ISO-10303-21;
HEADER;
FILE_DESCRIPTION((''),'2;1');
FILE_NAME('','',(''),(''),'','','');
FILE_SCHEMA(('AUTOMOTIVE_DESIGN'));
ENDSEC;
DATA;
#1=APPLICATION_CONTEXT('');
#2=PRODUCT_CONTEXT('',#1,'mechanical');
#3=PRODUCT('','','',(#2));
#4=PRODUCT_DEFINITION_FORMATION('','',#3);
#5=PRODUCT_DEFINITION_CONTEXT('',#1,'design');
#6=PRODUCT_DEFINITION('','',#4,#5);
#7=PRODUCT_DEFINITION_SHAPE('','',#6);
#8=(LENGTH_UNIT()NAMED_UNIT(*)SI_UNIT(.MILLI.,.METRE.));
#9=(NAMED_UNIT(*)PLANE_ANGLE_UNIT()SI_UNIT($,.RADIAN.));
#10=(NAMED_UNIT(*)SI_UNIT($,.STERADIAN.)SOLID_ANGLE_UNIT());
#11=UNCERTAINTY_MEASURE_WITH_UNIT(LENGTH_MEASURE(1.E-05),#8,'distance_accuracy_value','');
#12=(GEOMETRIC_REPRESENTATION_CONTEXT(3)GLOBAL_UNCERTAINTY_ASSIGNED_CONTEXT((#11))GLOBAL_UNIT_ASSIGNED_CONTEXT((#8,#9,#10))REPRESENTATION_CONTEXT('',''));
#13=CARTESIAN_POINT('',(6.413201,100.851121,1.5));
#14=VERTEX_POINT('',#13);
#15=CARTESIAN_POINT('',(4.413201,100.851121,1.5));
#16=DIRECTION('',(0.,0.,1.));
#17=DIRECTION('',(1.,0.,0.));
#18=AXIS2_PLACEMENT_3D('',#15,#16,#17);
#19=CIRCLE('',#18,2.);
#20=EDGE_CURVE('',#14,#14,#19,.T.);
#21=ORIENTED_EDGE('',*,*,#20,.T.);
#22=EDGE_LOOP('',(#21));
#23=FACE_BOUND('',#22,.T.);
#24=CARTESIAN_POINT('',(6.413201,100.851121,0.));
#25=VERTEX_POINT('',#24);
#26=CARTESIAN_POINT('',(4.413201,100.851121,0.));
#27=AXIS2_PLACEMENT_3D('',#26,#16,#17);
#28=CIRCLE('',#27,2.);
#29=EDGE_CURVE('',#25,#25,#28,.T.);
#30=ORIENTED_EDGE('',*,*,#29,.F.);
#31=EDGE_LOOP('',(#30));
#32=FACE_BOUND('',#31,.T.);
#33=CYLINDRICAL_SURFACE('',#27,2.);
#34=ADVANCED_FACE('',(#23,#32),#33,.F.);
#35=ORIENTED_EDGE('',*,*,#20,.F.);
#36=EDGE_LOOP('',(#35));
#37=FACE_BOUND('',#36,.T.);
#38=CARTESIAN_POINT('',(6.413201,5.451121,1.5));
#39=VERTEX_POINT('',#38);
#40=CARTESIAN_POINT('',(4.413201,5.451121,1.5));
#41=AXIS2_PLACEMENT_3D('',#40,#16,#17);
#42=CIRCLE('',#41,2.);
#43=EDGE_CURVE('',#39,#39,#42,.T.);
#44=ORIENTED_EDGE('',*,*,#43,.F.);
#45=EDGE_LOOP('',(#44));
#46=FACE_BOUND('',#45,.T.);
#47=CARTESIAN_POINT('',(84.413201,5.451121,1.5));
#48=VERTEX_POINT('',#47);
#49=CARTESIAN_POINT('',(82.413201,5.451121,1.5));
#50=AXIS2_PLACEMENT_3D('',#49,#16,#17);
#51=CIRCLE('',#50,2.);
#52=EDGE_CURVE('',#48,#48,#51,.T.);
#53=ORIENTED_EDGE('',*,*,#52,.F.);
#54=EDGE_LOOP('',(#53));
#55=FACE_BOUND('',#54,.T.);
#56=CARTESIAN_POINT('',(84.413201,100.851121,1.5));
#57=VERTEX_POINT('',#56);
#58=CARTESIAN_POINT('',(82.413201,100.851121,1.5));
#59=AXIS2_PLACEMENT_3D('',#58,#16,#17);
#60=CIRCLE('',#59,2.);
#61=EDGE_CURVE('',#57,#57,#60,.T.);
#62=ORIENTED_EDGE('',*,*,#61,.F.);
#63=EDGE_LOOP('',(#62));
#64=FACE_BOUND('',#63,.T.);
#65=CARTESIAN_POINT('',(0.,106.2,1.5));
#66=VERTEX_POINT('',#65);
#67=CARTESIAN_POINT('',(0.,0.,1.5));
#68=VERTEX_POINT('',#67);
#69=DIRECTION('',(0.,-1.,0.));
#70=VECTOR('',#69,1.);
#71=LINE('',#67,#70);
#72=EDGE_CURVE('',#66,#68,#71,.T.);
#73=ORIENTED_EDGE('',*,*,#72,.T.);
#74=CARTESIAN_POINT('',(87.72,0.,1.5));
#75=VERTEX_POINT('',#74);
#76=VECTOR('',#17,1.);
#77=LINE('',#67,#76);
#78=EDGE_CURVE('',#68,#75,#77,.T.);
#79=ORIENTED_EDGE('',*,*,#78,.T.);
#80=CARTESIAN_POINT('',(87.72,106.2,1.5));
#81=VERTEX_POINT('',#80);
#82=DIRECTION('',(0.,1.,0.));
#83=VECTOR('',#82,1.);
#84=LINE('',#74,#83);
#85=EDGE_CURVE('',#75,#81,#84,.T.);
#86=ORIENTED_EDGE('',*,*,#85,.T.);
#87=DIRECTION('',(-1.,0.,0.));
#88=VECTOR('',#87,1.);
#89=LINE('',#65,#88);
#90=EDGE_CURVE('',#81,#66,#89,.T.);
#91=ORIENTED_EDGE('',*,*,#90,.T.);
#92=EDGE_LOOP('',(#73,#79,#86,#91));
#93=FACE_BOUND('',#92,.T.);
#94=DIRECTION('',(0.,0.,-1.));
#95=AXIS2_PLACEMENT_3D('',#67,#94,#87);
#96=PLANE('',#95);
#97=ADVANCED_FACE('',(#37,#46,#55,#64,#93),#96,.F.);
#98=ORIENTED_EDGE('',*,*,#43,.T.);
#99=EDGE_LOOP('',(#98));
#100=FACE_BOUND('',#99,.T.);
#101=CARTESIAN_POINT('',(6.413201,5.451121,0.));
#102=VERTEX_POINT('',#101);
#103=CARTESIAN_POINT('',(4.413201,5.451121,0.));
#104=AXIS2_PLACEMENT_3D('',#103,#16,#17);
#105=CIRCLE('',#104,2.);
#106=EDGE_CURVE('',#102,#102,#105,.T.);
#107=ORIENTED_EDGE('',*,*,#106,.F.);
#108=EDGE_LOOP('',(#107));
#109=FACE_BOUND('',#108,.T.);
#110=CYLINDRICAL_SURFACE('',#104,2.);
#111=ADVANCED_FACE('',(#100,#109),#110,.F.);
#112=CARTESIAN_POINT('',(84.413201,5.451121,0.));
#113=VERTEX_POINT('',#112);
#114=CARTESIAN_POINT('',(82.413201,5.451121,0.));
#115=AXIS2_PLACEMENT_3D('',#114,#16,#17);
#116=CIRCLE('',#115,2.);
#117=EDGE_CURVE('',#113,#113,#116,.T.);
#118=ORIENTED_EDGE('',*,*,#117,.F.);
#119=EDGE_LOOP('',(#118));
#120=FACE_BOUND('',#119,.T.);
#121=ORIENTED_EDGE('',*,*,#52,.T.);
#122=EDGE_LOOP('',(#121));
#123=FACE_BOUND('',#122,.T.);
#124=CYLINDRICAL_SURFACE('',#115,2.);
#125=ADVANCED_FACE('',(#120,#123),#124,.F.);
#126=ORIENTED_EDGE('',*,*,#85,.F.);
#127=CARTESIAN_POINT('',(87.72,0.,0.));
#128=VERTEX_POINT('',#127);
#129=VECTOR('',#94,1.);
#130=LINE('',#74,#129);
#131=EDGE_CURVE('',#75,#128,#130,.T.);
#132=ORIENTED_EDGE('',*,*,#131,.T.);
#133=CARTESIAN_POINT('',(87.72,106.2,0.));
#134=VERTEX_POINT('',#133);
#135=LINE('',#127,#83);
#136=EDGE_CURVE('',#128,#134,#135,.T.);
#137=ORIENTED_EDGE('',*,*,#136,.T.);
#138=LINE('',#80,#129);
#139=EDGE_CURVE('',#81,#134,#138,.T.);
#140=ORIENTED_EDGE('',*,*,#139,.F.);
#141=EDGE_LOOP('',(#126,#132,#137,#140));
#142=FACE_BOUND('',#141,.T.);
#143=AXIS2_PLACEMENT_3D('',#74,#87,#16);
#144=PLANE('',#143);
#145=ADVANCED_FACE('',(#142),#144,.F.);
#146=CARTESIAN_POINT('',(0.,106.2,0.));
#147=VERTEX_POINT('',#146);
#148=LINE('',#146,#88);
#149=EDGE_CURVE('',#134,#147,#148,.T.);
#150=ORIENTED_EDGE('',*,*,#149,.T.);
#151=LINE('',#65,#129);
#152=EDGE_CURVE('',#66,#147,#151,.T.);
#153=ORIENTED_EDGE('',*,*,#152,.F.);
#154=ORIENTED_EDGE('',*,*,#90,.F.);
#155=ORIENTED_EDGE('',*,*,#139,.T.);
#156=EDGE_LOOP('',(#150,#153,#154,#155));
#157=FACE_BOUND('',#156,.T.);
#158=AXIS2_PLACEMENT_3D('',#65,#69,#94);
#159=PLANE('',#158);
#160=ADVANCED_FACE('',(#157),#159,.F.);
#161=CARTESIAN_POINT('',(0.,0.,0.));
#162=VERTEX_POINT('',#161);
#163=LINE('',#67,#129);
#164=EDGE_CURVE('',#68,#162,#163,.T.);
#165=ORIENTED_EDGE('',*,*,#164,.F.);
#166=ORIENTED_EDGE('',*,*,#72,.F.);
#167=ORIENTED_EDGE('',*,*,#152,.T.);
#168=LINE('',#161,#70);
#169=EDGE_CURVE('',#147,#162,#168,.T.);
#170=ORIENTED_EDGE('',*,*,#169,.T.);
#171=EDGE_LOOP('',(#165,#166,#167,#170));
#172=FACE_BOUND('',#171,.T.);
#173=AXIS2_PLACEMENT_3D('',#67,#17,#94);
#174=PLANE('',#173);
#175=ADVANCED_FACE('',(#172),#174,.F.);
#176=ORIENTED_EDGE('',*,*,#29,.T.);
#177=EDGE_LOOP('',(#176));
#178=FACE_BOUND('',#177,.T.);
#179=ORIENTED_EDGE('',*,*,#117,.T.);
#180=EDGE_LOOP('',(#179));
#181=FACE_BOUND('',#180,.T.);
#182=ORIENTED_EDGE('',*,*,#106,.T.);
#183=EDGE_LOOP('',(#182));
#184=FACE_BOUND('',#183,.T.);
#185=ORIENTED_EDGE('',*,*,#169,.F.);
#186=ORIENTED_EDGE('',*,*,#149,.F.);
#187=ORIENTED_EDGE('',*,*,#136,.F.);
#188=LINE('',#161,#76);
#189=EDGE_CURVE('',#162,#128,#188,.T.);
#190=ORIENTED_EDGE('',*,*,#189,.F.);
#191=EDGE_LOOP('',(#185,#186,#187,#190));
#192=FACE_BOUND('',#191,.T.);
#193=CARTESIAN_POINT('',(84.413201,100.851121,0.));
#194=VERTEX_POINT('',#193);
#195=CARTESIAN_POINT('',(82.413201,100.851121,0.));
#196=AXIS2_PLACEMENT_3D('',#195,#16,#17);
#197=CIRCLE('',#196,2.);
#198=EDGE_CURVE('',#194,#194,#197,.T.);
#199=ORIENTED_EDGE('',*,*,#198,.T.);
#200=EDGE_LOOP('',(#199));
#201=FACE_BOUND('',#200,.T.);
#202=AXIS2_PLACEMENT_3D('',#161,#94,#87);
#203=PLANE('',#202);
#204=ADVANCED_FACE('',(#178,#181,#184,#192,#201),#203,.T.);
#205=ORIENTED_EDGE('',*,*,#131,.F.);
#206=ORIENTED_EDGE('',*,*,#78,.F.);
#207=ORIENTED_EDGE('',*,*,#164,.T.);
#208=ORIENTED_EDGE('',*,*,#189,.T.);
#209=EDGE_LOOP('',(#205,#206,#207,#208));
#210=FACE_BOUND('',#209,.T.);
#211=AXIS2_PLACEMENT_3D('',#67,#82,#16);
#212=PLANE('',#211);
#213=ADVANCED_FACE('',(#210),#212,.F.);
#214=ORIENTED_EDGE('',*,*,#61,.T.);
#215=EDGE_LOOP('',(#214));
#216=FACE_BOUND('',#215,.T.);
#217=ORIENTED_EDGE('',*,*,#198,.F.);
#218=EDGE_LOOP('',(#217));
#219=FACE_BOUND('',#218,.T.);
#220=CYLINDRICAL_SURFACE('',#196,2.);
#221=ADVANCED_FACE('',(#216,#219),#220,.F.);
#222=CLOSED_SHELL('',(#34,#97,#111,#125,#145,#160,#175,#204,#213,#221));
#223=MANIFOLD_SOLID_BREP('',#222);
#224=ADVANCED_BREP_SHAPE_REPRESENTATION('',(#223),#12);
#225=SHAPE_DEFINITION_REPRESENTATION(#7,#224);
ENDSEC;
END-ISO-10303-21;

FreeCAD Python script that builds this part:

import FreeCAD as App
import Part
import Sketcher

V = App.Vector


def add_polygon(sketch, points):
    """Adds a closed chain of lines whose ends are joined by coincident constraints."""
    first, n = sketch.GeometryCount, len(points)
    for a, b in zip(points, points[1:] + points[:1]):
        sketch.addGeometry(Part.LineSegment(App.Vector(*a, 0), App.Vector(*b, 0)), False)
    for i in range(n):
        sketch.addConstraint(Sketcher.Constraint("Coincident", first + i, 2, first + (i + 1) % n, 1))

doc = App.newDocument("Part")
body = doc.addObject("PartDesign::Body", "Body")

sketch1 = body.newObject("Sketcher::SketchObject", "Sketch")
sketch1.AttachmentSupport = (doc.getObject("XY_Plane"), [""])
sketch1.MapMode = "FlatFace"
add_polygon(sketch1, [(0, 106), (0, 0), (88, 0), (88, 106)])
sketch1.addConstraint([
    Sketcher.Constraint("Vertical", 0),
    Sketcher.Constraint("Horizontal", 1),
    Sketcher.Constraint("Vertical", 2),
    Sketcher.Constraint("Horizontal", 3),
    Sketcher.Constraint("Coincident", 0, 2, -1, 1),
    Sketcher.Constraint("DistanceY", 0, 2, 0, 1, 106.2),
    Sketcher.Constraint("DistanceX", 1, 1, 1, 2, 87.72),
])
pad1 = body.newObject("PartDesign::Pad", "Pad")
pad1.Profile = sketch1
pad1.Length = 1.5

sketch2 = body.newObject("Sketcher::SketchObject", "Sketch001")
sketch2.AttachmentSupport = (doc.getObject("XY_Plane"), [""])
sketch2.MapMode = "FlatFace"
sketch2.AttachmentOffset = App.Placement(V(0, 0, 1.5), App.Rotation())
sketch2.addGeometry([
    Part.Circle(V(4.4, 100.9, 0), V(0, 0, 1), 2),
    Part.Circle(V(4.4, 5.5, 0), V(0, 0, 1), 2),
    Part.Circle(V(82.4, 100.9, 0), V(0, 0, 1), 2),
    Part.Circle(V(82.4, 5.5, 0), V(0, 0, 1), 2),
], False)
sketch2.addConstraint([
    Sketcher.Constraint("Equal", 0, 1),
    Sketcher.Constraint("Equal", 1, 2),
    Sketcher.Constraint("Equal", 2, 3),
    Sketcher.Constraint("Horizontal", 0, 3, 2, 3),
    Sketcher.Constraint("Horizontal", 1, 3, 3, 3),
    Sketcher.Constraint("Vertical", 0, 3, 1, 3),
    Sketcher.Constraint("Vertical", 2, 3, 3, 3),
    Sketcher.Constraint("Diameter", 0, 4.0),
    Sketcher.Constraint("DistanceX", 0, 3, 2, 3, 78.0),
    Sketcher.Constraint("DistanceY", 1, 3, 0, 3, 95.4),
    Sketcher.Constraint("DistanceX", -1, 1, 0, 3, 4.413201),
    Sketcher.Constraint("DistanceY", -1, 1, 0, 3, 100.851121),
])
pocket1 = body.newObject("PartDesign::Pocket", "Pocket")
pocket1.Profile = sketch2
pocket1.Type = "ThroughAll"

doc.recompute()
